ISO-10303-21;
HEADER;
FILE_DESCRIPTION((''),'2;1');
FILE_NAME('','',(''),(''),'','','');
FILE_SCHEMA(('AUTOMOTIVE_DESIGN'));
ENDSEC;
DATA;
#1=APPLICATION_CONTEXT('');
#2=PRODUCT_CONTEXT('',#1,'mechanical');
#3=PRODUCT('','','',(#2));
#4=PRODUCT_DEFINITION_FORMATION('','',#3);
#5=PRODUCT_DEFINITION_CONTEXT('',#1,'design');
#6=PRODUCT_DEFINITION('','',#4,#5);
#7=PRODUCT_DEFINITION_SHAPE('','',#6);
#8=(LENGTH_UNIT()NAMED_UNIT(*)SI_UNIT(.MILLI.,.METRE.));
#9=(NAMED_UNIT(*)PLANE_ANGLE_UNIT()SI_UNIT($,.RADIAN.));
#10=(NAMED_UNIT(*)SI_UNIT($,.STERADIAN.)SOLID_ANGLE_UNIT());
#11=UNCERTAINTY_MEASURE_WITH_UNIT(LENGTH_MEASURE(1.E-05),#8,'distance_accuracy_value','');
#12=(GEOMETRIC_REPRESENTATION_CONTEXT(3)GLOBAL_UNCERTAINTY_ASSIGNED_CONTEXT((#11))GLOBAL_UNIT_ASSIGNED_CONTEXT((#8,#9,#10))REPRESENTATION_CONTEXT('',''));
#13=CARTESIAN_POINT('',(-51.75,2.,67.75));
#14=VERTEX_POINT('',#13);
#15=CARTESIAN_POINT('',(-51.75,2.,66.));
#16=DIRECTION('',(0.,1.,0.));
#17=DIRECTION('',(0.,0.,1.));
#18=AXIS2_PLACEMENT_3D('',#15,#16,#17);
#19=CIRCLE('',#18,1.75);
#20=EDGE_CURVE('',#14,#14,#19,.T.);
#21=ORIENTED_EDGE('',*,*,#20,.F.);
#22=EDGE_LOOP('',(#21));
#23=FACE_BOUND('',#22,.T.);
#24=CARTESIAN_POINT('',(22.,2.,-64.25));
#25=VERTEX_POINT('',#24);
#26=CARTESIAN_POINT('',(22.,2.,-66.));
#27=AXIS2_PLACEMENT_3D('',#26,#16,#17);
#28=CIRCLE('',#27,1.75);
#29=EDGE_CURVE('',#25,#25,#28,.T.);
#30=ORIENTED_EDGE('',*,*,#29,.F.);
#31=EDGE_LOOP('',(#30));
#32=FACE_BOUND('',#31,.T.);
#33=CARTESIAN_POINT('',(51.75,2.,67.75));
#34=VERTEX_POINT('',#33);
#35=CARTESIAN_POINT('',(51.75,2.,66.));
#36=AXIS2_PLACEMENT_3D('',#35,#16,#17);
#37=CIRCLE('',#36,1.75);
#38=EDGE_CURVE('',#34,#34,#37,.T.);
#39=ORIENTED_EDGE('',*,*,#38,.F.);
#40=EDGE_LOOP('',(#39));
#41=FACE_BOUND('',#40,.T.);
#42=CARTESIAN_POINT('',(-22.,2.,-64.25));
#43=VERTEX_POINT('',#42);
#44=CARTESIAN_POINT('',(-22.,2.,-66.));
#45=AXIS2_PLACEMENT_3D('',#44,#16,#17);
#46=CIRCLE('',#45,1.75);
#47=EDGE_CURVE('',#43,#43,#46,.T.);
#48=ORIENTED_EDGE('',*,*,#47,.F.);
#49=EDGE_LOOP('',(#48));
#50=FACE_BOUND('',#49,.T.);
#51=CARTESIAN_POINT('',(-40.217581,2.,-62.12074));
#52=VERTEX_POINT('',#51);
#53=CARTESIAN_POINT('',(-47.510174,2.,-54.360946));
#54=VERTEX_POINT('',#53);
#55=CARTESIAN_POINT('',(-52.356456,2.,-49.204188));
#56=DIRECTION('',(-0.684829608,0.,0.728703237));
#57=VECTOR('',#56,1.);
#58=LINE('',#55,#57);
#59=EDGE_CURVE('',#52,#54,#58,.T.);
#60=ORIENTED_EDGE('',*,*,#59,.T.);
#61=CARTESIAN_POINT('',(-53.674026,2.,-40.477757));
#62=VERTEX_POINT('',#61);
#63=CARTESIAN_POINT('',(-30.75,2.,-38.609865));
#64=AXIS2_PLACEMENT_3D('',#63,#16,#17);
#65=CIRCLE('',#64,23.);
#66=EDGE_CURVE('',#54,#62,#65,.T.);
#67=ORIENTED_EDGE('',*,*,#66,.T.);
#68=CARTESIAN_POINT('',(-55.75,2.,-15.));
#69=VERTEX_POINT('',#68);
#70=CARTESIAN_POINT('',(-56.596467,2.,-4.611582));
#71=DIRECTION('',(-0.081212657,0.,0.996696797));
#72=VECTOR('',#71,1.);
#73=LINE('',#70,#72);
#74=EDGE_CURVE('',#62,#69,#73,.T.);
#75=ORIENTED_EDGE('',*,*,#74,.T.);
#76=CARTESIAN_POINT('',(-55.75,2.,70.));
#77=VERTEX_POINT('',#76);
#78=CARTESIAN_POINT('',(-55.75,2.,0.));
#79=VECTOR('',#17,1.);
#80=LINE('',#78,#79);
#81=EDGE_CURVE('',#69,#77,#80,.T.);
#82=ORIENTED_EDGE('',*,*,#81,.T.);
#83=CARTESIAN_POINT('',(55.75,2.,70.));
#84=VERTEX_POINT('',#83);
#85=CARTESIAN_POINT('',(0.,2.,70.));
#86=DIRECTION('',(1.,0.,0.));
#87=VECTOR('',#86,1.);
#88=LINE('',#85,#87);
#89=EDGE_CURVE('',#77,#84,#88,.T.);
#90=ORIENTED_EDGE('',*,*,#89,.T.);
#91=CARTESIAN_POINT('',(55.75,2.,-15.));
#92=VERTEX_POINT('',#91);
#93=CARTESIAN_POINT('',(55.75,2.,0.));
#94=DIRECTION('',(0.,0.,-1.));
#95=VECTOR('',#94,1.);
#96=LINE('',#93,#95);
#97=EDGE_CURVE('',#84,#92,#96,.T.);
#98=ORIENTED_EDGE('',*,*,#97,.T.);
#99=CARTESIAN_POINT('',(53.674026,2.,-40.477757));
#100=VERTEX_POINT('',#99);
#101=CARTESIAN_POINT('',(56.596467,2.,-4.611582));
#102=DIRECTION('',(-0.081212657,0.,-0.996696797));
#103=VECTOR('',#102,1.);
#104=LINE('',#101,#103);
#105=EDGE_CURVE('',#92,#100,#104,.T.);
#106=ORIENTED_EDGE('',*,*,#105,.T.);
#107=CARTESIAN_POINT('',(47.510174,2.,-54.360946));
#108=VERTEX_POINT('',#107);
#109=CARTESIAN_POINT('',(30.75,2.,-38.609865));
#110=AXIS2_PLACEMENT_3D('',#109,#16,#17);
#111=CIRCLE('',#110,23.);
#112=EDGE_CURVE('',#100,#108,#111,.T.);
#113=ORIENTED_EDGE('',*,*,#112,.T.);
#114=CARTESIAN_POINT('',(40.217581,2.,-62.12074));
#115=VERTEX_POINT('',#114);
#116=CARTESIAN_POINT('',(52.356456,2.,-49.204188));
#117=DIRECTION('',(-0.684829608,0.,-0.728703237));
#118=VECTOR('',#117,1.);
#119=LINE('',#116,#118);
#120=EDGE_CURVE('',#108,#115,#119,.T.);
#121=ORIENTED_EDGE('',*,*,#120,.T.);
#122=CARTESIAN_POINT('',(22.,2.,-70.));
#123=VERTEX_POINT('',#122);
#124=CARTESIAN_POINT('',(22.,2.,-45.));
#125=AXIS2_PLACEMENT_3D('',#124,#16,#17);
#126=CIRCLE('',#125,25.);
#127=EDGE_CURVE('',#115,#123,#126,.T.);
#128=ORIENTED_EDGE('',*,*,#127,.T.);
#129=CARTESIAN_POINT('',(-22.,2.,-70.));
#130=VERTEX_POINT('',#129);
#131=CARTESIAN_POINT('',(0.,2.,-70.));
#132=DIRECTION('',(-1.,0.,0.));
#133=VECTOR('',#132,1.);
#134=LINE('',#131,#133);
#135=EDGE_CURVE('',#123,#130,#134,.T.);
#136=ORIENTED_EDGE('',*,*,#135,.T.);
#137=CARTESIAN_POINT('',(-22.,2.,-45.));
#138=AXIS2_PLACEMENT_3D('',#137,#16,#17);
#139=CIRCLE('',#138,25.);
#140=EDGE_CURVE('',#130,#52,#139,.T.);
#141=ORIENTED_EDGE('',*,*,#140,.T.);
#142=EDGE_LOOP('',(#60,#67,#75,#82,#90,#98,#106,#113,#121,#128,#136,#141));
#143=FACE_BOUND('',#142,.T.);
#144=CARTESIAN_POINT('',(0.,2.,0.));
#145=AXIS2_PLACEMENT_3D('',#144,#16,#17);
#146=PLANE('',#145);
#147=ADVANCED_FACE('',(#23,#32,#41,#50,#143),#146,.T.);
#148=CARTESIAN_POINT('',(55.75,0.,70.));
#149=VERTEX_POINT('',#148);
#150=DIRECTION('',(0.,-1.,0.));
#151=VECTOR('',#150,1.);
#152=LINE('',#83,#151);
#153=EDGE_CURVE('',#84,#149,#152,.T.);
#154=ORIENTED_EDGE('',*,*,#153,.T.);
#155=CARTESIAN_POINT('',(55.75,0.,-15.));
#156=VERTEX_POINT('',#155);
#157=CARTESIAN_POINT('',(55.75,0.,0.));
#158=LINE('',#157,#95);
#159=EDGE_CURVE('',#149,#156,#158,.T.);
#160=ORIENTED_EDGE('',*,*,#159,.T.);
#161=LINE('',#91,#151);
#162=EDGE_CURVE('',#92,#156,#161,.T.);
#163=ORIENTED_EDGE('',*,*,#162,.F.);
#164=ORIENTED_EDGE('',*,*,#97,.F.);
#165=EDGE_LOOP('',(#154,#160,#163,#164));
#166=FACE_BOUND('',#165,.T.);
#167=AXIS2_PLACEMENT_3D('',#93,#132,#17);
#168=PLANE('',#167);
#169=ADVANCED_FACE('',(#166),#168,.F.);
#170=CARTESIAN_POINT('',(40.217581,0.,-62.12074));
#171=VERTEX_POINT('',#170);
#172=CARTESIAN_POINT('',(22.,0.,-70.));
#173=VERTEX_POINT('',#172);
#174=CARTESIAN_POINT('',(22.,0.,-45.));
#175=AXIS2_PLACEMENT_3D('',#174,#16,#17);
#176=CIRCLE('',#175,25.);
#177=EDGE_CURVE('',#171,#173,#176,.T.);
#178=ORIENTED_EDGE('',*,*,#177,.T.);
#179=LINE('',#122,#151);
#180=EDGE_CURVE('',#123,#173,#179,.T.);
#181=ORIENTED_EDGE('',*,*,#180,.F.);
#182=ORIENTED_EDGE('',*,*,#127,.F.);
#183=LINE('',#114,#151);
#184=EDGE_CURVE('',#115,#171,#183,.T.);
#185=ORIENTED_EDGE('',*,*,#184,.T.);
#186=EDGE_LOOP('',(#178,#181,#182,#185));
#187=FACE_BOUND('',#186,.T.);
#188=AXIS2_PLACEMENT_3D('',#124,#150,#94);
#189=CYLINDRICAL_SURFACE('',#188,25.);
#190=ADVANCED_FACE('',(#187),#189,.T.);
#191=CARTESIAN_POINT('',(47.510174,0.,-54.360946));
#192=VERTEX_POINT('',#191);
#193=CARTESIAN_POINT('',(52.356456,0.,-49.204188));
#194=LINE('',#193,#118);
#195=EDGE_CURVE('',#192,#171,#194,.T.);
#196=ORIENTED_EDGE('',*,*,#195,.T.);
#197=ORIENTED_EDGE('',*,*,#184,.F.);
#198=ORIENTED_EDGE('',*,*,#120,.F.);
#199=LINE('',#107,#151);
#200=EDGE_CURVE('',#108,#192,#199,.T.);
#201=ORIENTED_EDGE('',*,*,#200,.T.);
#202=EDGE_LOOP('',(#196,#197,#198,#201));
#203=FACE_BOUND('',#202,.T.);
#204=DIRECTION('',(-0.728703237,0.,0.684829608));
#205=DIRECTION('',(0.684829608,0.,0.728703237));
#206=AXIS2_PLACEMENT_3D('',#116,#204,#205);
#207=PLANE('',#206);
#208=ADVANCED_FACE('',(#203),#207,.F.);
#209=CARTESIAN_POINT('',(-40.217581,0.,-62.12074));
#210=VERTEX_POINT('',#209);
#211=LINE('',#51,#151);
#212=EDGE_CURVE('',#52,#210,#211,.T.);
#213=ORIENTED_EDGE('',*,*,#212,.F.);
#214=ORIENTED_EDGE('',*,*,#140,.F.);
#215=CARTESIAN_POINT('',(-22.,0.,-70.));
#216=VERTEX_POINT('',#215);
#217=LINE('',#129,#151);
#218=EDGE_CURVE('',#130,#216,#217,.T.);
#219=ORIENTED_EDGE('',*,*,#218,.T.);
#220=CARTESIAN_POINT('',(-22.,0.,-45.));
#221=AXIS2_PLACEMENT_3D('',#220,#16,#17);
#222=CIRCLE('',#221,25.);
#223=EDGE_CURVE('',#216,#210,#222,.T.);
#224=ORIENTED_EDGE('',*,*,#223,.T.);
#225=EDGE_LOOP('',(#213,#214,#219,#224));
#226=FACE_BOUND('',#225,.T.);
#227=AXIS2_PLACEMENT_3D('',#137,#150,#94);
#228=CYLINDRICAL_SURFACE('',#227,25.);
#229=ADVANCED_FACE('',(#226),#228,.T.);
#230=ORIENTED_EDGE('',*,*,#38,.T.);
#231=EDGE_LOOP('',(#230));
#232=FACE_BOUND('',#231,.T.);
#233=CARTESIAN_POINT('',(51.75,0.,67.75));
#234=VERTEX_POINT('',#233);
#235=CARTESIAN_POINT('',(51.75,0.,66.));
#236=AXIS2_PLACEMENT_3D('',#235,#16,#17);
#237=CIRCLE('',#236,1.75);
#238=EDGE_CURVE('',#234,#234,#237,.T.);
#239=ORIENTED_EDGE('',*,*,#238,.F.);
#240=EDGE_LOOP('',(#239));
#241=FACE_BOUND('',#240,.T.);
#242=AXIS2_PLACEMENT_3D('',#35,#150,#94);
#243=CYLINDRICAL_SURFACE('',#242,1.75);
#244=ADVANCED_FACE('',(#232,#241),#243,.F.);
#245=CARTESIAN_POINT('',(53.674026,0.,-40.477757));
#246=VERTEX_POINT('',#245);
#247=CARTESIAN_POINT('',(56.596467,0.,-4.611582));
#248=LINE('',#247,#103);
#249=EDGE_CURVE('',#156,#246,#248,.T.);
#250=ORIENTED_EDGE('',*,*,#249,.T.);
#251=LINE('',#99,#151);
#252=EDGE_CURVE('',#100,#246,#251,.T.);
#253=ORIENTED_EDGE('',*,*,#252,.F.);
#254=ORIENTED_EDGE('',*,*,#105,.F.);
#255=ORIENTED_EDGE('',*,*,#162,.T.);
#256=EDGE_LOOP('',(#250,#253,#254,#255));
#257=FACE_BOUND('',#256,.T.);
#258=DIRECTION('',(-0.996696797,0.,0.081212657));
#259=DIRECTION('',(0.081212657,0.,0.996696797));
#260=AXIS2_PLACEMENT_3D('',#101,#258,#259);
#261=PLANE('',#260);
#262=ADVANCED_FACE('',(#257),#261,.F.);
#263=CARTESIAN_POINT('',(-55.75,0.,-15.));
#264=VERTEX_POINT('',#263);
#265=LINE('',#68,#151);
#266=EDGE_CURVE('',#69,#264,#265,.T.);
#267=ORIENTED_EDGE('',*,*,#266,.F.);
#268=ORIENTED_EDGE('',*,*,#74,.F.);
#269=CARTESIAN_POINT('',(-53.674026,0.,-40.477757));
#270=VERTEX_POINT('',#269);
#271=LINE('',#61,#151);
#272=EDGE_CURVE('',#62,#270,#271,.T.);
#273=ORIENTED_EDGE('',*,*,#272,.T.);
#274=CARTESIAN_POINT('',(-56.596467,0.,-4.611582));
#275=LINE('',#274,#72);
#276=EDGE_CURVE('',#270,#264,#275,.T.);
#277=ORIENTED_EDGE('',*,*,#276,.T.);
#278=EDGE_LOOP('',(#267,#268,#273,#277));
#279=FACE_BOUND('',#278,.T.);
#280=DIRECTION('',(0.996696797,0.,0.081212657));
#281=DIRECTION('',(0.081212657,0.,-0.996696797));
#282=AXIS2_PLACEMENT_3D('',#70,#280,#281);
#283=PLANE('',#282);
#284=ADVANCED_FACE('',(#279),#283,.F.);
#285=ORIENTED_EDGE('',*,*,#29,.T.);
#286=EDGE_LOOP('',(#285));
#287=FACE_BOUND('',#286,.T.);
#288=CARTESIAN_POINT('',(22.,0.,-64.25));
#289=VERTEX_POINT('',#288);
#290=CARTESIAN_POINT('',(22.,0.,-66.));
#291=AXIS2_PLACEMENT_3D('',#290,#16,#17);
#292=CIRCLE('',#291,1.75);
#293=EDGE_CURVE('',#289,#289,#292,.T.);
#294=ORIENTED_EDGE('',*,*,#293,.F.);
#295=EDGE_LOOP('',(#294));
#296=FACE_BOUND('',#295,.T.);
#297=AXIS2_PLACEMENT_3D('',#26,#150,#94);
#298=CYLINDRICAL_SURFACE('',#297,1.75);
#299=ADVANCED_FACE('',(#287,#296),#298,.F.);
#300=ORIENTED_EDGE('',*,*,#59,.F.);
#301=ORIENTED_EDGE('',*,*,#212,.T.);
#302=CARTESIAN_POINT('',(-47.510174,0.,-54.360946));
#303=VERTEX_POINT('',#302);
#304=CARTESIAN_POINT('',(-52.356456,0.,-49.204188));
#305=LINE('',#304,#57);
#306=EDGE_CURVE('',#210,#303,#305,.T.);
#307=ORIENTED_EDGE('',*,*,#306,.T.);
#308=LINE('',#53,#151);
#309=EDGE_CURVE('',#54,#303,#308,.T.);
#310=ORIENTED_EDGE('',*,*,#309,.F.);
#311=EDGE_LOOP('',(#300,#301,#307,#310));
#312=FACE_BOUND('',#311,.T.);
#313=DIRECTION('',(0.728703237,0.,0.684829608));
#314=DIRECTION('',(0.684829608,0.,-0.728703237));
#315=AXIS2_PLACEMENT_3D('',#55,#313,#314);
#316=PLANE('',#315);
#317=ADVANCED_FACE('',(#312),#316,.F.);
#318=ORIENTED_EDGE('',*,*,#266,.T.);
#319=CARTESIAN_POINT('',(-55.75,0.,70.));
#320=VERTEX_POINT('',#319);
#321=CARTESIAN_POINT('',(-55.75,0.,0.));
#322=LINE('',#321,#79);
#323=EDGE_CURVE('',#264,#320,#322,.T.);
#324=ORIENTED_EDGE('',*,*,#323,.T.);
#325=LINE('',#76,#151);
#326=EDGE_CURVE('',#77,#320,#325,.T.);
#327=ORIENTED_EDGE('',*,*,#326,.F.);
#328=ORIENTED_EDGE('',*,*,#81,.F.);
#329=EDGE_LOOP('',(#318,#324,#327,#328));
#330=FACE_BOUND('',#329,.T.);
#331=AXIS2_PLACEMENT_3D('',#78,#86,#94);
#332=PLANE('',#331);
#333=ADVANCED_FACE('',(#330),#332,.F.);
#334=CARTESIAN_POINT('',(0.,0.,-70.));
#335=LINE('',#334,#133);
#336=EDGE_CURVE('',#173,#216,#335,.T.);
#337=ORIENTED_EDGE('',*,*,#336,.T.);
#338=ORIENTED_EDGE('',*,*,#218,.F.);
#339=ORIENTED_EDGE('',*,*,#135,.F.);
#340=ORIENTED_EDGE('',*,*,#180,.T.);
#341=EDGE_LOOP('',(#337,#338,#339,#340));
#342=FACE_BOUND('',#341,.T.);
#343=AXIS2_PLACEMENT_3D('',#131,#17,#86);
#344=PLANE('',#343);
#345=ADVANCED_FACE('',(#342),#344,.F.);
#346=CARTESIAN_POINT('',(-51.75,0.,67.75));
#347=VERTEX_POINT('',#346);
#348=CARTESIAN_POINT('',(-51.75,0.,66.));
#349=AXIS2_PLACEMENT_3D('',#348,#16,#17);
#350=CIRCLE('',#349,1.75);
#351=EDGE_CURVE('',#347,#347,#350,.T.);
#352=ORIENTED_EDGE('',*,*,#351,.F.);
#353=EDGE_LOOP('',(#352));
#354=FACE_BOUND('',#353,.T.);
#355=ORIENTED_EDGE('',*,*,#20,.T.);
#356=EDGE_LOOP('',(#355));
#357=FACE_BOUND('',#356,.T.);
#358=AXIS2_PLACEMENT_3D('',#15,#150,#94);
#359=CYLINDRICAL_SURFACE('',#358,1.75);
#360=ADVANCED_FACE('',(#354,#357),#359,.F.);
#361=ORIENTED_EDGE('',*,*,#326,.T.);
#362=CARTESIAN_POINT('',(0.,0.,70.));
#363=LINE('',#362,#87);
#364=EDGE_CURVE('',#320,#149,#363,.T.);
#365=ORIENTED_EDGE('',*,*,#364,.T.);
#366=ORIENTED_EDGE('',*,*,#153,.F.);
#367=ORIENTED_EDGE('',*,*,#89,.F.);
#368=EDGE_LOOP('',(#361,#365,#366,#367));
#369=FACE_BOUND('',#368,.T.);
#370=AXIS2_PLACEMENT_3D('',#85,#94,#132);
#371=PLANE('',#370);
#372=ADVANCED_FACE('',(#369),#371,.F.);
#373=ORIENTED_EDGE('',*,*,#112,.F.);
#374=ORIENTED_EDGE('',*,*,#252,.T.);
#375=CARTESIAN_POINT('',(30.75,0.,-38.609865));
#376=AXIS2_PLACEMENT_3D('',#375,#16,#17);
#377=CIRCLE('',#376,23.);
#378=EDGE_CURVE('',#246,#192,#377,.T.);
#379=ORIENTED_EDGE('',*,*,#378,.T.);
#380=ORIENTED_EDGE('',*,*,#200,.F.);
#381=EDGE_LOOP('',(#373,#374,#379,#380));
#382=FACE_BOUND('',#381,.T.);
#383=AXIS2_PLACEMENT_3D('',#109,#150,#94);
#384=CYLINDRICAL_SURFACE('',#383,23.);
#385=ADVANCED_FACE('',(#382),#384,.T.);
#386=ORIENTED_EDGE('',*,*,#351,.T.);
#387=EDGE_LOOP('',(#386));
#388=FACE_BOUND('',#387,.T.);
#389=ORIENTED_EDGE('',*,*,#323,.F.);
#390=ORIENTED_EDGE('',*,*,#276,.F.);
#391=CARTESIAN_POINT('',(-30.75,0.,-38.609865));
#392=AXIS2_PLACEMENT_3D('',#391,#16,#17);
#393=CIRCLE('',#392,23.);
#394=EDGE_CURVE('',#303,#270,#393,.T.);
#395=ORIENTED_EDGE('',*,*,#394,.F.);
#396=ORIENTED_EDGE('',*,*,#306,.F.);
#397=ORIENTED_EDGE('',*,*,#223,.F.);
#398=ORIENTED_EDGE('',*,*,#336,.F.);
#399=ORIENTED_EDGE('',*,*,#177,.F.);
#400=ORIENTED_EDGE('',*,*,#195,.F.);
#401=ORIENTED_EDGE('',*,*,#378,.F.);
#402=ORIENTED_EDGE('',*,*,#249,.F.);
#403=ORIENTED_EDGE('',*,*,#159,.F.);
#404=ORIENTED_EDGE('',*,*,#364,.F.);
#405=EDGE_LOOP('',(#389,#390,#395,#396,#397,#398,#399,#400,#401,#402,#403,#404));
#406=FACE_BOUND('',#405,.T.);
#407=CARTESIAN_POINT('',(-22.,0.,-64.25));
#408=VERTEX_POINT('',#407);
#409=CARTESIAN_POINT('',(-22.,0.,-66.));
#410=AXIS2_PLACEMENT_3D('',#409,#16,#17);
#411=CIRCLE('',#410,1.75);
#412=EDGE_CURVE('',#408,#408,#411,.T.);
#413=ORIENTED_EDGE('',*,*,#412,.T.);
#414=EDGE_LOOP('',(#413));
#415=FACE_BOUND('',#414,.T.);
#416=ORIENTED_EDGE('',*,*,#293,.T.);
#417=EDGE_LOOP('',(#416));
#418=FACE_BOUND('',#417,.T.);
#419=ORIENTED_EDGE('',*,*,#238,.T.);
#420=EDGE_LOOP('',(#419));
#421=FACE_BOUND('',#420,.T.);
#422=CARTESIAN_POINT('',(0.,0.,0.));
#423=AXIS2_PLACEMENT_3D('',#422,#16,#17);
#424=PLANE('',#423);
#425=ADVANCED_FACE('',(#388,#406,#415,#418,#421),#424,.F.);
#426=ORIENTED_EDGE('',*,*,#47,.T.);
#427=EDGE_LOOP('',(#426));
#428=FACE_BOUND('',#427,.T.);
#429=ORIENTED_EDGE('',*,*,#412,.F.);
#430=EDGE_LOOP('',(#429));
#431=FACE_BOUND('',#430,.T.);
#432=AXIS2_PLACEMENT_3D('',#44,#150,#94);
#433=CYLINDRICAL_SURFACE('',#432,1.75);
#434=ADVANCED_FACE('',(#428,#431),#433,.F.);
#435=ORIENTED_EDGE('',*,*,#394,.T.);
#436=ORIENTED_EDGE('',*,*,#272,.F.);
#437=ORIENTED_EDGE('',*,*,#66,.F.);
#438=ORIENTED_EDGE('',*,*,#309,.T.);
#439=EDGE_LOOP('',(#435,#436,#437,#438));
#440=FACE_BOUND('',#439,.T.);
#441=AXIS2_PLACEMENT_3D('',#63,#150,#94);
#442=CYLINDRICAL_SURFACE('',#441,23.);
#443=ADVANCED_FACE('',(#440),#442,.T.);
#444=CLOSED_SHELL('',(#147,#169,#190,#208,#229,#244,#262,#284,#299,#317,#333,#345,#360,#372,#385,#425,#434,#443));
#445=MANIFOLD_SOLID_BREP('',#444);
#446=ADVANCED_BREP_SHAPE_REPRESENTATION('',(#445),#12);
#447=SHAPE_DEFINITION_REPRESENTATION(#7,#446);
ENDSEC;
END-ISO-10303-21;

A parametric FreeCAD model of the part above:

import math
import FreeCAD as App
import Part
import Sketcher
Q = App.Units.Quantity

doc = App.newDocument("Part")
params = doc.addObject("Spreadsheet::Sheet", "Params")
for row, (alias, value) in enumerate([
    ("sketch1_radius", "23 mm"),
    ("sketch1_radius2", "25 mm"),
    ("sketch1_diameter", "3.5 mm"),
    ("sketch1_width", "44 mm"),
    ("sketch1_height", "85 mm"),
    ("pad1_length", "2 mm"),
], start=1):
    params.set(f"A{row}", alias)
    params.set(f"B{row}", "=" + value)
    params.setAlias(f"B{row}", alias)

body = doc.addObject("PartDesign::Body", "Body")

sketch1 = doc.addObject("Sketcher::SketchObject", "Sketch")
body.addObject(sketch1)
sketch1.AttachmentSupport = (doc.XZ_Plane, [""])
sketch1.MapMode = "FlatFace"
sketch1.addGeometry(Part.LineSegment(App.Vector(55.8, 70, 0), App.Vector(55.8, -15, 0)), False)
sketch1.addGeometry(Part.LineSegment(App.Vector(55.8, -15, 0), App.Vector(53.7, -40.5, 0)), False)
sketch1.addGeometry(Part.ArcOfCircle(Part.Circle(App.Vector(30.8, -38.6, 0), App.Vector(0, 0, 1), 23), math.radians(-43), math.radians(-5)), False)
sketch1.addGeometry(Part.LineSegment(App.Vector(47.5, -54.4, 0), App.Vector(40.2, -62.1, 0)), False)
sketch1.addGeometry(Part.ArcOfCircle(Part.Circle(App.Vector(22, -45, 0), App.Vector(0, 0, 1), 25), math.radians(-90), math.radians(-43)), False)
sketch1.addGeometry(Part.LineSegment(App.Vector(22, -70, 0), App.Vector(-22, -70, 0)), False)
sketch1.addGeometry(Part.ArcOfCircle(Part.Circle(App.Vector(-22, -45, 0), App.Vector(0, 0, 1), 25), math.radians(-137), math.radians(-90)), False)
sketch1.addGeometry(Part.LineSegment(App.Vector(-40.2, -62.1, 0), App.Vector(-47.5, -54.4, 0)), False)
sketch1.addGeometry(Part.ArcOfCircle(Part.Circle(App.Vector(-30.8, -38.6, 0), App.Vector(0, 0, 1), 23), math.radians(-175), math.radians(-137)), False)
sketch1.addGeometry(Part.LineSegment(App.Vector(-53.7, -40.5, 0), App.Vector(-55.8, -15, 0)), False)
sketch1.addGeometry(Part.LineSegment(App.Vector(-55.8, -15, 0), App.Vector(-55.8, 70, 0)), False)
sketch1.addGeometry(Part.LineSegment(App.Vector(-55.8, 70, 0), App.Vector(55.8, 70, 0)), False)
sketch1.addGeometry(Part.Circle(App.Vector(-51.8, 66, 0), App.Vector(0, 0, 1), 1.8), False)
sketch1.addGeometry(Part.Circle(App.Vector(51.8, 66, 0), App.Vector(0, 0, 1), 1.8), False)
sketch1.addGeometry(Part.Circle(App.Vector(-22, -66, 0), App.Vector(0, 0, 1), 1.8), False)
sketch1.addGeometry(Part.Circle(App.Vector(22, -66, 0), App.Vector(0, 0, 1), 1.8), False)
sketch1.addConstraint(Sketcher.Constraint("Coincident", 0, 2, 1, 1))
sketch1.addConstraint(Sketcher.Constraint("Tangent", 1, 2, 2, 2))
sketch1.addConstraint(Sketcher.Constraint("Tangent", 2, 1, 3, 1))
sketch1.addConstraint(Sketcher.Constraint("Tangent", 3, 2, 4, 2))
sketch1.addConstraint(Sketcher.Constraint("Tangent", 4, 1, 5, 1))
sketch1.addConstraint(Sketcher.Constraint("Tangent", 5, 2, 6, 2))
sketch1.addConstraint(Sketcher.Constraint("Tangent", 6, 1, 7, 1))
sketch1.addConstraint(Sketcher.Constraint("Tangent", 7, 2, 8, 2))
sketch1.addConstraint(Sketcher.Constraint("Tangent", 8, 1, 9, 1))
sketch1.addConstraint(Sketcher.Constraint("Coincident", 9, 2, 10, 1))
sketch1.addConstraint(Sketcher.Constraint("Coincident", 10, 2, 11, 1))
sketch1.addConstraint(Sketcher.Constraint("Coincident", 11, 2, 0, 1))
sketch1.addConstraint(Sketcher.Constraint("Vertical", 0))
sketch1.addConstraint(Sketcher.Constraint("Horizontal", 5))
sketch1.addConstraint(Sketcher.Constraint("Vertical", 10))
sketch1.addConstraint(Sketcher.Constraint("Horizontal", 11))
sketch1.addConstraint(Sketcher.Constraint("Equal", 4, 6))
sketch1.addConstraint(Sketcher.Constraint("Equal", 2, 8))
sketch1.addConstraint(Sketcher.Constraint("Equal", 12, 13))
sketch1.addConstraint(Sketcher.Constraint("Equal", 13, 14))
sketch1.addConstraint(Sketcher.Constraint("Equal", 14, 15))
sketch1.addConstraint(Sketcher.Constraint("Symmetric", 2, 3, 8, 3, -2))
sketch1.addConstraint(Sketcher.Constraint("Symmetric", 12, 3, 13, 3, -2))
sketch1.addConstraint(Sketcher.Constraint("Symmetric", 14, 3, 15, 3, -2))
sketch1.addConstraint(Sketcher.Constraint("Symmetric", 0, 2, 9, 2, -2))
sketch1.addConstraint(Sketcher.Constraint("Horizontal", 3, 2, 6, 1))
sketch1.addConstraint(Sketcher.Constraint("Vertical", 6, 3, 14, 3))
sketch1.addConstraint(Sketcher.Constraint("Radius", 2, Q("23 mm")))
sketch1.addConstraint(Sketcher.Constraint("Radius", 4, Q("25 mm")))
sketch1.addConstraint(Sketcher.Constraint("Diameter", 12, Q("3.5 mm")))
sketch1.addConstraint(Sketcher.Constraint("DistanceX", 5, 2, 5, 1, Q("44 mm")))
sketch1.addConstraint(Sketcher.Constraint("DistanceY", 0, 2, 0, 1, Q("85 mm")))
sketch1.addConstraint(Sketcher.Constraint("DistanceX", 11, 1, 11, 2, Q("111.5 mm")))
sketch1.addConstraint(Sketcher.Constraint("DistanceY", 4, 3, -1, 1, Q("45 mm")))
sketch1.addConstraint(Sketcher.Constraint("DistanceY", -1, 1, 12, 3, Q("66 mm")))
sketch1.addConstraint(Sketcher.Constraint("DistanceY", 14, 3, -1, 1, Q("66 mm")))
sketch1.addConstraint(Sketcher.Constraint("DistanceY", 0, 2, -1, 1, Q("15 mm")))
sketch1.addConstraint(Sketcher.Constraint("DistanceX", 12, 3, 8, 3, Q("21 mm")))
sketch1.addConstraint(Sketcher.Constraint("DistanceX", 2, 3, 0, 2, Q("25 mm")))
sketch1.addConstraint(Sketcher.Constraint("Distance", 3, Q("10.648771 mm")))
sketch1.setExpression("Constraints[27]", "Params.sketch1_radius")
sketch1.setExpression("Constraints[28]", "Params.sketch1_radius2")
sketch1.setExpression("Constraints[29]", "Params.sketch1_diameter")
sketch1.setExpression("Constraints[30]", "Params.sketch1_width")
sketch1.setExpression("Constraints[31]", "Params.sketch1_height")
pad1 = doc.addObject("PartDesign::Pad", "Pad")
body.addObject(pad1)
pad1.Profile = sketch1
pad1.setExpression("Length", "Params.pad1_length")
pad1.Reversed = True

doc.recompute()
